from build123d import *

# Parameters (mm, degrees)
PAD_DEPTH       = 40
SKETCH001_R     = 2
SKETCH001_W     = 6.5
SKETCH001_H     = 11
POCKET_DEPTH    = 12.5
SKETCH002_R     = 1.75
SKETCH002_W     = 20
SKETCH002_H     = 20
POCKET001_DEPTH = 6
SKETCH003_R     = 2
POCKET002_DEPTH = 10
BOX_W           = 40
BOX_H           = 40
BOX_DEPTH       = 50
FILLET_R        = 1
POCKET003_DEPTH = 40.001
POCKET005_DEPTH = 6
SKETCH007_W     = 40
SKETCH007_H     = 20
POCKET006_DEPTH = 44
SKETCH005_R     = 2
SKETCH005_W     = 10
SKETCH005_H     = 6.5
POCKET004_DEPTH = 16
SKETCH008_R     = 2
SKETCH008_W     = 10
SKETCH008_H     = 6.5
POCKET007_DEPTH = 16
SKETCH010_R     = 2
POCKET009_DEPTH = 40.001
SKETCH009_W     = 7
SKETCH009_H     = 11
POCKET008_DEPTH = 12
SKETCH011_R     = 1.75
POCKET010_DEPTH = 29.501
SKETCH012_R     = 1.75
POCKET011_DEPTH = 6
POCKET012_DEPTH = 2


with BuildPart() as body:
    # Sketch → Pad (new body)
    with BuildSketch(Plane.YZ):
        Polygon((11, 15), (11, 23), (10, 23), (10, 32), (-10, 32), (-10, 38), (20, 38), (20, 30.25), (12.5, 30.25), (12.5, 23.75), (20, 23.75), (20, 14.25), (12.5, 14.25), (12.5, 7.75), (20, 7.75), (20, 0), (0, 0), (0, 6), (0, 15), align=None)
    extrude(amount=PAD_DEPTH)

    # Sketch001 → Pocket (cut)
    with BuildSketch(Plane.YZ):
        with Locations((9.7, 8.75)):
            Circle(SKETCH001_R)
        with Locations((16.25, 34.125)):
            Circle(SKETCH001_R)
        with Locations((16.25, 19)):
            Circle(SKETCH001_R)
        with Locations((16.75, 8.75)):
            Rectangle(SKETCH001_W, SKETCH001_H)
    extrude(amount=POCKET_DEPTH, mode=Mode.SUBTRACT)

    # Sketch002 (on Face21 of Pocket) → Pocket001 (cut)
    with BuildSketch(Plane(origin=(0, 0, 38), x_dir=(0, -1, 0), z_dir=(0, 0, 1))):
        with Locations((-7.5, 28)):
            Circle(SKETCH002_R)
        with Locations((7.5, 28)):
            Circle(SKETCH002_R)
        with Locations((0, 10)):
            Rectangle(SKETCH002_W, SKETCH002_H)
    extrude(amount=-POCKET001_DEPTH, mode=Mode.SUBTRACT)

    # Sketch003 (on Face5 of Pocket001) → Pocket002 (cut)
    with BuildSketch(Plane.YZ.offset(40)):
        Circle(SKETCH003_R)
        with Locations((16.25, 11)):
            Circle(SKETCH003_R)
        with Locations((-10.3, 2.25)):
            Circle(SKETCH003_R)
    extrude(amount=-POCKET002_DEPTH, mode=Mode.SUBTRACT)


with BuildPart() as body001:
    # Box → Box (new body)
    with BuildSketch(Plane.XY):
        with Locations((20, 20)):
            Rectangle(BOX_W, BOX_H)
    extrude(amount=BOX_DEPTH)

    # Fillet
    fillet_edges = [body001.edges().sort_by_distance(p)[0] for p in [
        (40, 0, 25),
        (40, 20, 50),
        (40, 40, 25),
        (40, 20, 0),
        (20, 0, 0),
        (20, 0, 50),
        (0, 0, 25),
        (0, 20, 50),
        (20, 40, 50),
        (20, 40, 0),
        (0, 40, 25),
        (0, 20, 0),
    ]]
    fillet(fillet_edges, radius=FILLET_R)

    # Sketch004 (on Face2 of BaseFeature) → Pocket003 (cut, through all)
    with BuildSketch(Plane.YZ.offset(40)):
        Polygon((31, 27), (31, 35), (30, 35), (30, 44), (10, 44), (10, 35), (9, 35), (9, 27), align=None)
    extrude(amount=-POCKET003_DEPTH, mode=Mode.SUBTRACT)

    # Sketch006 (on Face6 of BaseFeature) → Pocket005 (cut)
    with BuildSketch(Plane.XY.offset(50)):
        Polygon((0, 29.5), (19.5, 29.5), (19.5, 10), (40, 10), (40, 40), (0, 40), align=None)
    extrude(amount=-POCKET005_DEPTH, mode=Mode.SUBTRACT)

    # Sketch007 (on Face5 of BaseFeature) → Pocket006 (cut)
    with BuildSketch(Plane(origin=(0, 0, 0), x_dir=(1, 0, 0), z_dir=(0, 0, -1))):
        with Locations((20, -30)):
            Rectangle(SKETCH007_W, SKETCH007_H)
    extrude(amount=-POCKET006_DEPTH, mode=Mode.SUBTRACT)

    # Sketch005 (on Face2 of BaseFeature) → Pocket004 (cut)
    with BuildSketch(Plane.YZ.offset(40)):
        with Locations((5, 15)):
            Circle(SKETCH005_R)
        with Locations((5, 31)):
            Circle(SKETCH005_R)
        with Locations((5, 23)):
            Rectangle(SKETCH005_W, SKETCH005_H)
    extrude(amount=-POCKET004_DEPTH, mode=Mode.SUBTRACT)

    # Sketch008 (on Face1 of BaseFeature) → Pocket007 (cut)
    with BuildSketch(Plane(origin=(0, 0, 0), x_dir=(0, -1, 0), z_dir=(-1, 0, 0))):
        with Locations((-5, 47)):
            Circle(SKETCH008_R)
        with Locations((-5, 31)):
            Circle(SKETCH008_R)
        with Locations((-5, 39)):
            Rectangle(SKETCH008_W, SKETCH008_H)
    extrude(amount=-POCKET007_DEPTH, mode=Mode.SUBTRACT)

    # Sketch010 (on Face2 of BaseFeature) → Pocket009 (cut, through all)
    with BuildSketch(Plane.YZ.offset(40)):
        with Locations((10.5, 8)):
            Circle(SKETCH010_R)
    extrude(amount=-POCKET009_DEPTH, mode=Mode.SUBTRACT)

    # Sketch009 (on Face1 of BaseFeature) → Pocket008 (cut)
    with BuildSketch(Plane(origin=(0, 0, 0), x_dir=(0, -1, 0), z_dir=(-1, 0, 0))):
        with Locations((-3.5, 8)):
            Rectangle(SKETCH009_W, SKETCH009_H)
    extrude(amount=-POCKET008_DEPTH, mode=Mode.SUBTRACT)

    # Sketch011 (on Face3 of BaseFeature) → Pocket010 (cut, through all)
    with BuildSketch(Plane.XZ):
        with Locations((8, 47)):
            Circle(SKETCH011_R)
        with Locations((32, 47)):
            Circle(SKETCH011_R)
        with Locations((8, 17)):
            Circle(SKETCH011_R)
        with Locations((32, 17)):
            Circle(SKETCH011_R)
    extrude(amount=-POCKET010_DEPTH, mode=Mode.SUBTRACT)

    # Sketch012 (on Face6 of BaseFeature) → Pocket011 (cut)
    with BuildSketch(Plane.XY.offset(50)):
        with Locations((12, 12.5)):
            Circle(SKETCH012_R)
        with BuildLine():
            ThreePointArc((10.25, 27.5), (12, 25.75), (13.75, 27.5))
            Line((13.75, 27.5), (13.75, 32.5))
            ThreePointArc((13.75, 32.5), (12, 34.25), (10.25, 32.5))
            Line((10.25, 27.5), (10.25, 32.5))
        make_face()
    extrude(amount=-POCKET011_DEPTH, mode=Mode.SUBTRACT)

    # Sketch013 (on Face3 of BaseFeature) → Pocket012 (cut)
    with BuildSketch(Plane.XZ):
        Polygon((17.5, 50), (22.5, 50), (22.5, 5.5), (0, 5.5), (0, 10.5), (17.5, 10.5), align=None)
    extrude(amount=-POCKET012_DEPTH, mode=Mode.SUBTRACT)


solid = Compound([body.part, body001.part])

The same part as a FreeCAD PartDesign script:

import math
import FreeCAD as App
import Part
import Sketcher

V = App.Vector
Q = App.Units.Quantity


def add_polygon(sketch, points):
    """Adds a closed chain of lines whose ends are joined by coincident constraints."""
    first, n = sketch.GeometryCount, len(points)
    for a, b in zip(points, points[1:] + points[:1]):
        sketch.addGeometry(Part.LineSegment(App.Vector(*a, 0), App.Vector(*b, 0)), False)
    for i in range(n):
        sketch.addConstraint(Sketcher.Constraint("Coincident", first + i, 2, first + (i + 1) % n, 1))

doc = App.newDocument("Part")
body = doc.addObject("PartDesign::Body", "Body")

sketch1 = body.newObject("Sketcher::SketchObject", "Sketch")
sketch1.AttachmentSupport = (doc.getObject("YZ_Plane"), [""])
sketch1.MapMode = "FlatFace"
add_polygon(sketch1, [(11, 23), (11, 15), (0, 15), (0, 0), (20, 0), (20, 7.8), (12.5, 7.8), (12.5, 14.2), (20, 14.2), (20, 23.8), (12.5, 23.8), (12.5, 30.2), (20, 30.2), (20, 38), (-10, 38), (-10, 32), (10, 32), (10, 23)])
sketch1.addConstraint(Sketcher.Constraint("Vertical", 0))
sketch1.addConstraint(Sketcher.Constraint("Horizontal", 1))
sketch1.addConstraint(Sketcher.Constraint("Vertical", 2))
sketch1.addConstraint(Sketcher.Constraint("Horizontal", 3))
sketch1.addConstraint(Sketcher.Constraint("Vertical", 4))
sketch1.addConstraint(Sketcher.Constraint("Horizontal", 5))
sketch1.addConstraint(Sketcher.Constraint("Vertical", 6))
sketch1.addConstraint(Sketcher.Constraint("Horizontal", 7))
sketch1.addConstraint(Sketcher.Constraint("Vertical", 8))
sketch1.addConstraint(Sketcher.Constraint("Horizontal", 9))
sketch1.addConstraint(Sketcher.Constraint("Vertical", 10))
sketch1.addConstraint(Sketcher.Constraint("Horizontal", 11))
sketch1.addConstraint(Sketcher.Constraint("Vertical", 12))
sketch1.addConstraint(Sketcher.Constraint("Horizontal", 13))
sketch1.addConstraint(Sketcher.Constraint("Vertical", 14))
sketch1.addConstraint(Sketcher.Constraint("Horizontal", 15))
sketch1.addConstraint(Sketcher.Constraint("Vertical", 16))
sketch1.addConstraint(Sketcher.Constraint("Horizontal", 17))
sketch1.addConstraint(Sketcher.Constraint("Coincident", 2, 2, -1, 1))
sketch1.addConstraint(Sketcher.Constraint("Vertical", 4, 2, 7, 2))
sketch1.addConstraint(Sketcher.Constraint("Vertical", 6, 2, 9, 2))
sketch1.addConstraint(Sketcher.Constraint("Vertical", 8, 2, 11, 2))
sketch1.addConstraint(Sketcher.Constraint("Equal", 3, 15))
sketch1.addConstraint(Sketcher.Constraint("Equal", 6, 10))
sketch1.addConstraint(Sketcher.Constraint("Equal", 4, 12))
sketch1.addConstraint(Sketcher.Constraint("DistanceX", 1, 2, 1, 1, Q("11 mm")))
sketch1.addConstraint(Sketcher.Constraint("DistanceX", 3, 1, 3, 2, Q("20 mm")))
sketch1.addConstraint(Sketcher.Constraint("DistanceX", 13, 2, 13, 1, Q("30 mm")))
sketch1.addConstraint(Sketcher.Constraint("DistanceY", 0, 2, 0, 1, Q("8 mm")))
sketch1.addConstraint(Sketcher.Constraint("DistanceY", 2, 2, 2, 1, Q("15 mm")))
sketch1.addConstraint(Sketcher.Constraint("DistanceY", 14, 2, 14, 1, Q("6 mm")))
sketch1.addConstraint(Sketcher.Constraint("DistanceY", 16, 2, 16, 1, Q("9 mm")))
sketch1.addConstraint(Sketcher.Constraint("DistanceX", 5, 2, 5, 1, Q("7.5 mm")))
sketch1.addConstraint(Sketcher.Constraint("DistanceY", 6, 1, 6, 2, Q("6.5 mm")))
sketch1.addConstraint(Sketcher.Constraint("DistanceY", 8, 1, 8, 2, Q("9.5 mm")))
pad1 = body.newObject("PartDesign::Pad", "Pad")
pad1.Profile = sketch1
pad1.Length = 40

sketch2 = body.newObject("Sketcher::SketchObject", "Sketch001")
sketch2.AttachmentSupport = (doc.getObject("YZ_Plane"), [""])
sketch2.MapMode = "FlatFace"
sketch2.addGeometry(Part.Circle(V(9.7, 8.8, 0), V(0, 0, 1), 2), False)
sketch2.addGeometry(Part.Circle(V(16.2, 34.1, 0), V(0, 0, 1), 2), False)
sketch2.addGeometry(Part.Circle(V(16.2, 19, 0), V(0, 0, 1), 2), False)
add_polygon(sketch2, [(13.5, 14.2), (13.5, 3.2), (20, 3.2), (20, 14.2)])
sketch2.addConstraint(Sketcher.Constraint("Vertical", 3))
sketch2.addConstraint(Sketcher.Constraint("Horizontal", 4))
sketch2.addConstraint(Sketcher.Constraint("Vertical", 5))
sketch2.addConstraint(Sketcher.Constraint("Horizontal", 6))
sketch2.addConstraint(Sketcher.Constraint("Equal", 0, 1))
sketch2.addConstraint(Sketcher.Constraint("Equal", 1, 2))
sketch2.addConstraint(Sketcher.Constraint("Vertical", 1, 3, 2, 3))
sketch2.addConstraint(Sketcher.Constraint("Diameter", 0, Q("4 mm")))
sketch2.addConstraint(Sketcher.Constraint("DistanceY", 3, 2, 3, 1, Q("11 mm")))
sketch2.addConstraint(Sketcher.Constraint("DistanceX", 4, 1, 4, 2, Q("6.5 mm")))
sketch2.addConstraint(Sketcher.Constraint("DistanceY", -1, 1, 2, 3, Q("19 mm")))
sketch2.addConstraint(Sketcher.Constraint("DistanceX", -1, 1, 4, 2, Q("20 mm")))
sketch2.addConstraint(Sketcher.Constraint("DistanceX", -1, 1, 0, 3, Q("9.7 mm")))
sketch2.addConstraint(Sketcher.Constraint("DistanceY", 3, 2, 0, 3, Q("5.5 mm")))
sketch2.addConstraint(Sketcher.Constraint("DistanceY", -1, 1, 0, 3, Q("8.75 mm")))
sketch2.addConstraint(Sketcher.Constraint("DistanceX", -1, 1, 1, 3, Q("16.25 mm")))
sketch2.addConstraint(Sketcher.Constraint("DistanceY", -1, 1, 1, 3, Q("34.125 mm")))
pocket1 = body.newObject("PartDesign::Pocket", "Pocket")
pocket1.Profile = sketch2
pocket1.Length = 12.5
pocket1.Reversed = True

sketch3 = body.newObject("Sketcher::SketchObject", "Sketch002")
sketch3.AttachmentSupport = (doc.getObject("XY_Plane"), [""])
sketch3.MapMode = "FlatFace"
sketch3.AttachmentOffset = App.Placement(V(0, 0, 38), App.Rotation())
sketch3.addGeometry(Part.Circle(V(28, 7.5, 0), V(0, 0, 1), 1.8), False)
sketch3.addGeometry(Part.Circle(V(28, -7.5, 0), V(0, 0, 1), 1.8), False)
add_polygon(sketch3, [(20, 10), (0, 10), (0, -10), (20, -10)])
sketch3.addConstraint(Sketcher.Constraint("Horizontal", 2))
sketch3.addConstraint(Sketcher.Constraint("Vertical", 3))
sketch3.addConstraint(Sketcher.Constraint("Horizontal", 4))
sketch3.addConstraint(Sketcher.Constraint("Vertical", 5))
sketch3.addConstraint(Sketcher.Constraint("Equal", 0, 1))
sketch3.addConstraint(Sketcher.Constraint("Symmetric", 2, 2, 3, 2, -1, 1))
sketch3.addConstraint(Sketcher.Constraint("Symmetric", 0, 3, 1, 3, -1))
sketch3.addConstraint(Sketcher.Constraint("Equal", 4, 3))
sketch3.addConstraint(Sketcher.Constraint("Diameter", 0, Q("3.5 mm")))
sketch3.addConstraint(Sketcher.Constraint("DistanceX", 2, 2, 2, 1, Q("20 mm")))
sketch3.addConstraint(Sketcher.Constraint("DistanceX", -1, 1, 0, 3, Q("28 mm")))
sketch3.addConstraint(Sketcher.Constraint("DistanceY", 1, 3, 0, 3, Q("15 mm")))
pocket2 = body.newObject("PartDesign::Pocket", "Pocket001")
pocket2.Profile = sketch3
pocket2.Length = 6

sketch4 = body.newObject("Sketcher::SketchObject", "Sketch003")
sketch4.AttachmentSupport = (doc.getObject("YZ_Plane"), [""])
sketch4.MapMode = "FlatFace"
sketch4.AttachmentOffset = App.Placement(V(0, 0, 40), App.Rotation())
sketch4.addGeometry(Part.Circle(V(0, 0, 0), V(0, 0, 1), 2), False)
sketch4.addGeometry(Part.Circle(V(16.2, 11, 0), V(0, 0, 1), 2), False)
sketch4.addGeometry(Part.Circle(V(-10.3, 2.2, 0), V(0, 0, 1), 2), False)
sketch4.addConstraint(Sketcher.Constraint("Coincident", 0, 3, -1, 1))
sketch4.addConstraint(Sketcher.Constraint("Equal", 0, 1))
sketch4.addConstraint(Sketcher.Constraint("Equal", 1, 2))
sketch4.addConstraint(Sketcher.Constraint("Diameter", 0, Q("4 mm")))
sketch4.addConstraint(Sketcher.Constraint("DistanceY", -1, 1, 1, 3, Q("11 mm")))
sketch4.addConstraint(Sketcher.Constraint("DistanceX", 2, 3, -1, 1, Q("10.3 mm")))
sketch4.addConstraint(Sketcher.Constraint("DistanceX", -1, 1, 1, 3, Q("16.25 mm")))
sketch4.addConstraint(Sketcher.Constraint("DistanceY", -1, 1, 2, 3, Q("2.25 mm")))
pocket3 = body.newObject("PartDesign::Pocket", "Pocket002")
pocket3.Profile = sketch4
pocket3.Length = 10
body2 = doc.addObject("PartDesign::Body", "Body001")

sketch5 = body2.newObject("Sketcher::SketchObject", "Sketch004")
sketch5.AttachmentSupport = (doc.getObject("XY_Plane001"), [""])
sketch5.MapMode = "FlatFace"
add_polygon(sketch5, [(0, 40), (0, 0), (40, 0), (40, 40)])
sketch5.addConstraint(Sketcher.Constraint("Vertical", 0))
sketch5.addConstraint(Sketcher.Constraint("Horizontal", 1))
sketch5.addConstraint(Sketcher.Constraint("Vertical", 2))
sketch5.addConstraint(Sketcher.Constraint("Horizontal", 3))
sketch5.addConstraint(Sketcher.Constraint("Coincident", 0, 2, -1, 1))
sketch5.addConstraint(Sketcher.Constraint("Equal", 3, 0))
sketch5.addConstraint(Sketcher.Constraint("DistanceX", 1, 1, 1, 2, Q("40 mm")))
pad2 = body2.newObject("PartDesign::Pad", "Pad001")
pad2.Profile = sketch5
pad2.Length = 50
doc.recompute()

fillet = body2.newObject("PartDesign::Fillet", "Fillet")
fillet.Base = (pad2, ["Edge1"])
fillet.UseAllEdges = True
fillet.Radius = 1

sketch6 = body2.newObject("Sketcher::SketchObject", "Sketch005")
sketch6.AttachmentSupport = (doc.getObject("YZ_Plane001"), [""])
sketch6.MapMode = "FlatFace"
sketch6.AttachmentOffset = App.Placement(V(0, 0, 40), App.Rotation())
add_polygon(sketch6, [(31, 27), (31, 35), (30, 35), (30, 44), (10, 44), (10, 35), (9, 35), (9, 27)])
sketch6.addConstraint(Sketcher.Constraint("Vertical", 0))
sketch6.addConstraint(Sketcher.Constraint("Horizontal", 1))
sketch6.addConstraint(Sketcher.Constraint("Vertical", 2))
sketch6.addConstraint(Sketcher.Constraint("Horizontal", 3))
sketch6.addConstraint(Sketcher.Constraint("Vertical", 4))
sketch6.addConstraint(Sketcher.Constraint("Horizontal", 5))
sketch6.addConstraint(Sketcher.Constraint("Vertical", 6))
sketch6.addConstraint(Sketcher.Constraint("Horizontal", 7))
sketch6.addConstraint(Sketcher.Constraint("Horizontal", 1, 2, 4, 2))
sketch6.addConstraint(Sketcher.Constraint("Equal", 1, 5))
sketch6.addConstraint(Sketcher.Constraint("DistanceX", 1, 2, 1, 1, Q("1 mm")))
sketch6.addConstraint(Sketcher.Constraint("DistanceX", 3, 2, 3, 1, Q("20 mm")))
sketch6.addConstraint(Sketcher.Constraint("DistanceY", 0, 1, 0, 2, Q("8 mm")))
sketch6.addConstraint(Sketcher.Constraint("DistanceY", 2, 1, 2, 2, Q("9 mm")))
sketch6.addConstraint(Sketcher.Constraint("DistanceX", -1, 1, 0, 2, Q("31 mm")))
sketch6.addConstraint(Sketcher.Constraint("DistanceY", -1, 1, 0, 2, Q("35 mm")))
pocket4 = body2.newObject("PartDesign::Pocket", "Pocket003")
pocket4.Profile = sketch6
pocket4.Type = "ThroughAll"

sketch7 = body2.newObject("Sketcher::SketchObject", "Sketch006")
sketch7.AttachmentSupport = (doc.getObject("XY_Plane001"), [""])
sketch7.MapMode = "FlatFace"
sketch7.AttachmentOffset = App.Placement(V(0, 0, 50), App.Rotation())
add_polygon(sketch7, [(0, 30), (20, 30), (20, 10), (40, 10), (40, 40), (0, 40)])
sketch7.addConstraint(Sketcher.Constraint("Horizontal", 0))
sketch7.addConstraint(Sketcher.Constraint("Vertical", 1))
sketch7.addConstraint(Sketcher.Constraint("Horizontal", 2))
sketch7.addConstraint(Sketcher.Constraint("Vertical", 3))
sketch7.addConstraint(Sketcher.Constraint("Horizontal", 4))
sketch7.addConstraint(Sketcher.Constraint("Vertical", 5))
sketch7.addConstraint(Sketcher.Constraint("PointOnObject", 4, 2, -2))
sketch7.addConstraint(Sketcher.Constraint("Equal", 0, 1))
sketch7.addConstraint(Sketcher.Constraint("DistanceX", 4, 2, 4, 1, Q("40 mm")))
sketch7.addConstraint(Sketcher.Constraint("DistanceY", 3, 1, 3, 2, Q("30 mm")))
sketch7.addConstraint(Sketcher.Constraint("DistanceX", 0, 1, 0, 2, Q("19.5 mm")))
sketch7.addConstraint(Sketcher.Constraint("DistanceY", -1, 1, 1, 2, Q("10 mm")))
pocket5 = body2.newObject("PartDesign::Pocket", "Pocket004")
pocket5.Profile = sketch7
pocket5.Length = 6

sketch8 = body2.newObject("Sketcher::SketchObject", "Sketch007")
sketch8.AttachmentSupport = (doc.getObject("XY_Plane001"), [""])
sketch8.MapMode = "FlatFace"
add_polygon(sketch8, [(0, 20), (0, 40), (40, 40), (40, 20)])
sketch8.addConstraint(Sketcher.Constraint("Vertical", 0))
sketch8.addConstraint(Sketcher.Constraint("Horizontal", 1))
sketch8.addConstraint(Sketcher.Constraint("Vertical", 2))
sketch8.addConstraint(Sketcher.Constraint("Horizontal", 3))
sketch8.addConstraint(Sketcher.Constraint("PointOnObject", 0, 2, -2))
sketch8.addConstraint(Sketcher.Constraint("DistanceX", 1, 1, 1, 2, Q("40 mm")))
sketch8.addConstraint(Sketcher.Constraint("DistanceY", 0, 1, 0, 2, Q("20 mm")))
sketch8.addConstraint(Sketcher.Constraint("DistanceY", -1, 1, 0, 2, Q("40 mm")))
pocket6 = body2.newObject("PartDesign::Pocket", "Pocket005")
pocket6.Profile = sketch8
pocket6.Length = 44
pocket6.Reversed = True

sketch9 = body2.newObject("Sketcher::SketchObject", "Sketch008")
sketch9.AttachmentSupport = (doc.getObject("YZ_Plane001"), [""])
sketch9.MapMode = "FlatFace"
sketch9.AttachmentOffset = App.Placement(V(0, 0, 40), App.Rotation())
sketch9.addGeometry(Part.Circle(V(5, 15, 0), V(0, 0, 1), 2), False)
sketch9.addGeometry(Part.Circle(V(5, 31, 0), V(0, 0, 1), 2), False)
add_polygon(sketch9, [(0, 26.2), (0, 19.8), (10, 19.8), (10, 26.2)])
sketch9.addConstraint(Sketcher.Constraint("Vertical", 2))
sketch9.addConstraint(Sketcher.Constraint("Horizontal", 3))
sketch9.addConstraint(Sketcher.Constraint("Vertical", 4))
sketch9.addConstraint(Sketcher.Constraint("Horizontal", 5))
sketch9.addConstraint(Sketcher.Constraint("Equal", 0, 1))
sketch9.addConstraint(Sketcher.Constraint("PointOnObject", 2, 2, -2))
sketch9.addConstraint(Sketcher.Constraint("Vertical", 0, 3, 1, 3))
sketch9.addConstraint(Sketcher.Constraint("Diameter", 0, Q("4 mm")))
sketch9.addConstraint(Sketcher.Constraint("DistanceX", 3, 1, 3, 2, Q("10 mm")))
sketch9.addConstraint(Sketcher.Constraint("DistanceY", 2, 2, 2, 1, Q("6.5 mm")))
sketch9.addConstraint(Sketcher.Constraint("DistanceX", -1, 1, 0, 3, Q("5 mm")))
sketch9.addConstraint(Sketcher.Constraint("DistanceY", -1, 1, 0, 3, Q("15 mm")))
sketch9.addConstraint(Sketcher.Constraint("DistanceY", -1, 1, 1, 3, Q("31 mm")))
sketch9.addConstraint(Sketcher.Constraint("DistanceY", -1, 1, 2, 2, Q("19.75 mm")))
pocket7 = body2.newObject("PartDesign::Pocket", "Pocket006")
pocket7.Profile = sketch9
pocket7.Length = 16

sketch10 = body2.newObject("Sketcher::SketchObject", "Sketch009")
sketch10.AttachmentSupport = (doc.getObject("YZ_Plane001"), [""])
sketch10.MapMode = "FlatFace"
sketch10.addGeometry(Part.Circle(V(5, 47, 0), V(0, 0, 1), 2), False)
sketch10.addGeometry(Part.Circle(V(5, 31, 0), V(0, 0, 1), 2), False)
add_polygon(sketch10, [(10, 42.2), (10, 35.8), (0, 35.8), (0, 42.2)])
sketch10.addConstraint(Sketcher.Constraint("Vertical", 2))
sketch10.addConstraint(Sketcher.Constraint("Horizontal", 3))
sketch10.addConstraint(Sketcher.Constraint("Vertical", 4))
sketch10.addConstraint(Sketcher.Constraint("Horizontal", 5))
sketch10.addConstraint(Sketcher.Constraint("Equal", 0, 1))
sketch10.addConstraint(Sketcher.Constraint("PointOnObject", 3, 2, -2))
sketch10.addConstraint(Sketcher.Constraint("Vertical", 0, 3, 1, 3))
sketch10.addConstraint(Sketcher.Constraint("Diameter", 0, Q("4 mm")))
sketch10.addConstraint(Sketcher.Constraint("DistanceX", 3, 2, 3, 1, Q("10 mm")))
sketch10.addConstraint(Sketcher.Constraint("DistanceY", 2, 2, 2, 1, Q("6.5 mm")))
sketch10.addConstraint(Sketcher.Constraint("DistanceX", -1, 1, 0, 3, Q("5 mm")))
sketch10.addConstraint(Sketcher.Constraint("DistanceY", -1, 1, 0, 3, Q("47 mm")))
sketch10.addConstraint(Sketcher.Constraint("DistanceY", -1, 1, 1, 3, Q("31 mm")))
sketch10.addConstraint(Sketcher.Constraint("DistanceY", -1, 1, 2, 2, Q("35.75 mm")))
pocket8 = body2.newObject("PartDesign::Pocket", "Pocket007")
pocket8.Profile = sketch10
pocket8.Length = 16
pocket8.Reversed = True

sketch11 = body2.newObject("Sketcher::SketchObject", "Sketch010")
sketch11.AttachmentSupport = (doc.getObject("YZ_Plane001"), [""])
sketch11.MapMode = "FlatFace"
sketch11.AttachmentOffset = App.Placement(V(0, 0, 40), App.Rotation())
sketch11.addGeometry(Part.Circle(V(10.5, 8, 0), V(0, 0, 1), 2), False)
sketch11.addConstraint(Sketcher.Constraint("Diameter", 0, Q("4 mm")))
sketch11.addConstraint(Sketcher.Constraint("DistanceY", -1, 1, 0, 3, Q("8 mm")))
sketch11.addConstraint(Sketcher.Constraint("DistanceX", -1, 1, 0, 3, Q("10.5 mm")))
pocket9 = body2.newObject("PartDesign::Pocket", "Pocket008")
pocket9.Profile = sketch11
pocket9.Type = "ThroughAll"

sketch12 = body2.newObject("Sketcher::SketchObject", "Sketch011")
sketch12.AttachmentSupport = (doc.getObject("YZ_Plane001"), [""])
sketch12.MapMode = "FlatFace"
add_polygon(sketch12, [(7, 14), (7, 2), (0, 2), (0, 14)])
sketch12.addConstraint(Sketcher.Constraint("Vertical", 0))
sketch12.addConstraint(Sketcher.Constraint("Horizontal", 1))
sketch12.addConstraint(Sketcher.Constraint("Vertical", 2))
sketch12.addConstraint(Sketcher.Constraint("Horizontal", 3))
sketch12.addConstraint(Sketcher.Constraint("PointOnObject", 1, 2, -2))
sketch12.addConstraint(Sketcher.Constraint("DistanceX", 1, 2, 1, 1, Q("7 mm")))
sketch12.addConstraint(Sketcher.Constraint("DistanceY", 0, 2, 0, 1, Q("11 mm")))
sketch12.addConstraint(Sketcher.Constraint("DistanceY", -1, 1, 0, 2, Q("2.5 mm")))
pocket10 = body2.newObject("PartDesign::Pocket", "Pocket009")
pocket10.Profile = sketch12
pocket10.Length = 12
pocket10.Reversed = True

sketch13 = body2.newObject("Sketcher::SketchObject", "Sketch012")
sketch13.AttachmentSupport = (doc.getObject("XZ_Plane001"), [""])
sketch13.MapMode = "FlatFace"
sketch13.addGeometry(Part.Circle(V(8, 47, 0), V(0, 0, 1), 1.8), False)
sketch13.addGeometry(Part.Circle(V(32, 47, 0), V(0, 0, 1), 1.8), False)
sketch13.addGeometry(Part.Circle(V(8, 17, 0), V(0, 0, 1), 1.8), False)
sketch13.addGeometry(Part.Circle(V(32, 17, 0), V(0, 0, 1), 1.8), False)
sketch13.addConstraint(Sketcher.Constraint("Equal", 0, 1))
sketch13.addConstraint(Sketcher.Constraint("Equal", 1, 2))
sketch13.addConstraint(Sketcher.Constraint("Equal", 2, 3))
sketch13.addConstraint(Sketcher.Constraint("Horizontal", 0, 3, 1, 3))
sketch13.addConstraint(Sketcher.Constraint("Horizontal", 2, 3, 3, 3))
sketch13.addConstraint(Sketcher.Constraint("Vertical", 0, 3, 2, 3))
sketch13.addConstraint(Sketcher.Constraint("Vertical", 1, 3, 3, 3))
sketch13.addConstraint(Sketcher.Constraint("Diameter", 0, Q("3.5 mm")))
sketch13.addConstraint(Sketcher.Constraint("DistanceX", -1, 1, 0, 3, Q("8 mm")))
sketch13.addConstraint(Sketcher.Constraint("DistanceY", -1, 1, 0, 3, Q("47 mm")))
sketch13.addConstraint(Sketcher.Constraint("DistanceX", -1, 1, 1, 3, Q("32 mm")))
sketch13.addConstraint(Sketcher.Constraint("DistanceY", -1, 1, 2, 3, Q("17 mm")))
pocket11 = body2.newObject("PartDesign::Pocket", "Pocket010")
pocket11.Profile = sketch13
pocket11.Type = "ThroughAll"

sketch14 = body2.newObject("Sketcher::SketchObject", "Sketch013")
sketch14.AttachmentSupport = (doc.getObject("XY_Plane001"), [""])
sketch14.MapMode = "FlatFace"
sketch14.AttachmentOffset = App.Placement(V(0, 0, 50), App.Rotation())
sketch14.addGeometry(Part.Circle(V(12, 12.5, 0), V(0, 0, 1), 1.8), False)
sketch14.addGeometry(Part.ArcOfCircle(Part.Circle(V(12, 27.5, 0), V(0, 0, 1), 1.8), math.radians(180), math.radians(360)), False)
sketch14.addGeometry(Part.LineSegment(V(13.8, 27.5, 0), V(13.8, 32.5, 0)), False)
sketch14.addGeometry(Part.ArcOfCircle(Part.Circle(V(12, 32.5, 0), V(0, 0, 1), 1.8), math.radians(0), math.radians(180)), False)
sketch14.addGeometry(Part.LineSegment(V(10.2, 32.5, 0), V(10.2, 27.5, 0)), False)
sketch14.addConstraint(Sketcher.Constraint("Tangent", 1, 2, 2, 1))
sketch14.addConstraint(Sketcher.Constraint("Tangent", 2, 2, 3, 1))
sketch14.addConstraint(Sketcher.Constraint("Tangent", 3, 2, 4, 1))
sketch14.addConstraint(Sketcher.Constraint("Tangent", 4, 2, 1, 1))
sketch14.addConstraint(Sketcher.Constraint("Vertical", 2))
sketch14.addConstraint(Sketcher.Constraint("Vertical", 4))
sketch14.addConstraint(Sketcher.Constraint("Equal", 0, 1))
sketch14.addConstraint(Sketcher.Constraint("Vertical", 0, 3, 1, 3))
sketch14.addConstraint(Sketcher.Constraint("Diameter", 0, Q("3.5 mm")))
sketch14.addConstraint(Sketcher.Constraint("DistanceY", 2, 1, 2, 2, Q("5 mm")))
sketch14.addConstraint(Sketcher.Constraint("DistanceX", -1, 1, 0, 3, Q("12 mm")))
sketch14.addConstraint(Sketcher.Constraint("DistanceY", 0, 3, 1, 3, Q("15 mm")))
sketch14.addConstraint(Sketcher.Constraint("DistanceY", -1, 1, 0, 3, Q("12.5 mm")))
pocket12 = body2.newObject("PartDesign::Pocket", "Pocket011")
pocket12.Profile = sketch14
pocket12.Length = 6

sketch15 = body2.newObject("Sketcher::SketchObject", "Sketch014")
sketch15.AttachmentSupport = (doc.getObject("XZ_Plane001"), [""])
sketch15.MapMode = "FlatFace"
add_polygon(sketch15, [(22, 50), (18, 50), (18, 10), (0, 10), (0, 6), (22, 6)])
sketch15.addConstraint(Sketcher.Constraint("Horizontal", 0))
sketch15.addConstraint(Sketcher.Constraint("Vertical", 1))
sketch15.addConstraint(Sketcher.Constraint("Horizontal", 2))
sketch15.addConstraint(Sketcher.Constraint("Vertical", 3))
sketch15.addConstraint(Sketcher.Constraint("Horizontal", 4))
sketch15.addConstraint(Sketcher.Constraint("Vertical", 5))
sketch15.addConstraint(Sketcher.Constraint("PointOnObject", 2, 2, -2))
sketch15.addConstraint(Sketcher.Constraint("Equal", 0, 3))
sketch15.addConstraint(Sketcher.Constraint("DistanceX", 0, 2, 0, 1, Q("5 mm")))
sketch15.addConstraint(Sketcher.Constraint("DistanceX", 2, 2, 2, 1, Q("17.5 mm")))
sketch15.addConstraint(Sketcher.Constraint("DistanceY", 1, 2, 1, 1, Q("39.5 mm")))
sketch15.addConstraint(Sketcher.Constraint("DistanceY", -1, 1, 0, 2, Q("50 mm")))
pocket13 = body2.newObject("PartDesign::Pocket", "Pocket012")
pocket13.Profile = sketch15
pocket13.Length = 2

doc.recompute()
